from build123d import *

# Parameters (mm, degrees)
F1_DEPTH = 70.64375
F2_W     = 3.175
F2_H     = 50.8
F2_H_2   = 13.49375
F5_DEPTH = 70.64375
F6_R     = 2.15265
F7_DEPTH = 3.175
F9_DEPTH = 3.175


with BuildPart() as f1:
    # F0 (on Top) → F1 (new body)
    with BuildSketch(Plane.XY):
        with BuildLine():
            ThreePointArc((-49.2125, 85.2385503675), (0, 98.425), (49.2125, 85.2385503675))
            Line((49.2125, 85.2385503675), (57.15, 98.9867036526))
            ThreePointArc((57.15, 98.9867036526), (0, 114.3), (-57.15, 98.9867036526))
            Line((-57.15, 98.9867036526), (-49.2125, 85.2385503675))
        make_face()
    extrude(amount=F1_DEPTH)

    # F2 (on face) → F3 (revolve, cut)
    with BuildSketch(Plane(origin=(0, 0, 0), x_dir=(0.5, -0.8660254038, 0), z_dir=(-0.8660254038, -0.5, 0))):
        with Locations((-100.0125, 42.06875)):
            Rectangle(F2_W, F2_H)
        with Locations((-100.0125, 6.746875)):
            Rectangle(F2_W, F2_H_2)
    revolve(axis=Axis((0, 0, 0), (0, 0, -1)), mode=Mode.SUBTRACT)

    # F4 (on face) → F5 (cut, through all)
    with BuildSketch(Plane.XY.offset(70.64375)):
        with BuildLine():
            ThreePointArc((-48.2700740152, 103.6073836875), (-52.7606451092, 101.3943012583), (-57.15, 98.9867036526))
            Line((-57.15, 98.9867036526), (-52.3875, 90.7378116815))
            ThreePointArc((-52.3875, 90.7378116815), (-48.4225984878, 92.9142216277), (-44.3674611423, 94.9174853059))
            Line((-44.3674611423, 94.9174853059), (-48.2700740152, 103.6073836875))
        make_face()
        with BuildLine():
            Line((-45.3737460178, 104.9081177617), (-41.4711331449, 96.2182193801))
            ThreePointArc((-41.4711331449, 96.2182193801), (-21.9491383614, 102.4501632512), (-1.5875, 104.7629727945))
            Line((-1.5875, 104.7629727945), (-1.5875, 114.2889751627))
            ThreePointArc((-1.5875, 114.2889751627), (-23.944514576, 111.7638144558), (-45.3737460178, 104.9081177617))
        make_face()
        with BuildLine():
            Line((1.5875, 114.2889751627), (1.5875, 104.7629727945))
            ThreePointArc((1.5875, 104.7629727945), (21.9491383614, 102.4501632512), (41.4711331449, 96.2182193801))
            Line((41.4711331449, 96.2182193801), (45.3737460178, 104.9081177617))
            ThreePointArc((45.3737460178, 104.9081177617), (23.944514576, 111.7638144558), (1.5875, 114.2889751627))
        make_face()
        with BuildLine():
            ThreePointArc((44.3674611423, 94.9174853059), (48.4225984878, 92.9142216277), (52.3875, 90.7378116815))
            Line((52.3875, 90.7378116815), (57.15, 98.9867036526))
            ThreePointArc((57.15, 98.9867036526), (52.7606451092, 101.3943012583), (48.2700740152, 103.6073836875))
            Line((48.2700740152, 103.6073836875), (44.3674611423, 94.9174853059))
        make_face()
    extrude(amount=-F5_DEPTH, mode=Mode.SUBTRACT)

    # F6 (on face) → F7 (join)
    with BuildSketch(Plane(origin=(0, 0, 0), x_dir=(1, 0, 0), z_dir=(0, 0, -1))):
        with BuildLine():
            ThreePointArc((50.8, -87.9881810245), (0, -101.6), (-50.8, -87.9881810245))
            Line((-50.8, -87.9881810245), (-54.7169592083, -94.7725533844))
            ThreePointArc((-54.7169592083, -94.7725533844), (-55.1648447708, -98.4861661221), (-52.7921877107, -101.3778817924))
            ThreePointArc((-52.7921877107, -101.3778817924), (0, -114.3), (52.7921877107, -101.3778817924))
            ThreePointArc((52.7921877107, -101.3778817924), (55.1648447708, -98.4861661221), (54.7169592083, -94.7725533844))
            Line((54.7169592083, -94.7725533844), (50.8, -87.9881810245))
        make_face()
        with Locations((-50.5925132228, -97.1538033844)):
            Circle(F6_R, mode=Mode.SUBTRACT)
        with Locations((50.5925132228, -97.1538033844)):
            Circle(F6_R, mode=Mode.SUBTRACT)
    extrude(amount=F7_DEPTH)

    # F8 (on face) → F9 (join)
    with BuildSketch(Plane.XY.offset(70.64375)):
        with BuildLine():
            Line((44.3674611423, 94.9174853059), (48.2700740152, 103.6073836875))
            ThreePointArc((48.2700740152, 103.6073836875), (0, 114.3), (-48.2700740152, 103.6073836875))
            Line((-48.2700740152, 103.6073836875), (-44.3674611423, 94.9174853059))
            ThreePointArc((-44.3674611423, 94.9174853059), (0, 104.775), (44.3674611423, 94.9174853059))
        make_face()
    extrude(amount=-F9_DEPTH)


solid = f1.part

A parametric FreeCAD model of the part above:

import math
import FreeCAD as App
import Part
import Sketcher

V = App.Vector
Q = App.Units.Quantity

doc = App.newDocument("Part")
body = doc.addObject("PartDesign::Body", "Body")

# Sketch on XY plane
sketch1 = body.newObject("Sketcher::SketchObject", "Sketch")
sketch1.AttachmentSupport = (doc.getObject("XY_Plane"), [""])
sketch1.MapMode = "FlatFace"
sketch1.addGeometry([
    Part.ArcOfCircle(Part.Circle(V(0, 0, 0), V(0, 0, 1), 98), math.radians(60), math.radians(120)),
    Part.LineSegment(V(49, 85, 0), V(57, 99, 0)),
    Part.ArcOfCircle(Part.Circle(V(0, 0, 0), V(0, 0, 1), 114), math.radians(60), math.radians(120)),
    Part.LineSegment(V(-57, 99, 0), V(-49, 85, 0)),
], False)
sketch1.addConstraint([
    Sketcher.Constraint("Coincident", 0, 1, 1, 1),
    Sketcher.Constraint("Coincident", 1, 2, 2, 1),
    Sketcher.Constraint("Coincident", 2, 2, 3, 1),
    Sketcher.Constraint("Coincident", 3, 2, 0, 2),
    Sketcher.Constraint("Coincident", 0, 3, -1, 1),
    Sketcher.Constraint("Coincident", 2, 3, -1, 1),
    Sketcher.Constraint("Horizontal", 1, 2, 2, 2),
    Sketcher.Constraint("Horizontal", 0, 1, 3, 2),
    Sketcher.Constraint("Radius", 2, Q("4.5 in")),
    Sketcher.Constraint("Angle", 1, Q("60 deg")),
    Sketcher.Constraint("Radius", 0, Q("3.875 in")),
    Sketcher.Constraint("DistanceX", 2, 2, 1, 2, Q("4.5 in")),
])
pad1 = body.newObject("PartDesign::Pad", "Pad")
pad1.Profile = sketch1
pad1.Length = Q("2.78125 in")

# Sketch on an angled plane
sketch2 = body.newObject("Sketcher::SketchObject", "Sketch001")
sketch2.Placement = App.Placement(V(0, 0, 0), App.Rotation(V(0.5, -0.866025404, 0), V(0, 0, 1), V(-0.866025404, -0.5, 0), "ZXY"))
sketch2.addGeometry([
    Part.LineSegment(V(-101.6, 67.5, 0), V(-101.6, 16.7, 0)),  # 0
    Part.LineSegment(V(-101.6, 16.7, 0), V(-98.4, 16.7, 0)),  # 1
    Part.LineSegment(V(-98.4, 16.7, 0), V(-98.4, 67.5, 0)),  # 2
    Part.LineSegment(V(-98.4, 67.5, 0), V(-101.6, 67.5, 0)),  # 3
    Part.LineSegment(V(-101.6, 13.5, 0), V(-101.6, 0, 0)),  # 4
    Part.LineSegment(V(-101.6, 0, 0), V(-98.4, 0, 0)),  # 5
    Part.LineSegment(V(-98.4, 0, 0), V(-98.4, 13.5, 0)),  # 6
    Part.LineSegment(V(-98.4, 13.5, 0), V(-101.6, 13.5, 0)),  # 7
], False)
sketch2.addConstraint([
    Sketcher.Constraint("Coincident", 0, 2, 1, 1),
    Sketcher.Constraint("Coincident", 1, 2, 2, 1),
    Sketcher.Constraint("Coincident", 2, 2, 3, 1),
    Sketcher.Constraint("Coincident", 3, 2, 0, 1),
    Sketcher.Constraint("Coincident", 4, 2, 5, 1),
    Sketcher.Constraint("Coincident", 5, 2, 6, 1),
    Sketcher.Constraint("Coincident", 6, 2, 7, 1),
    Sketcher.Constraint("Coincident", 7, 2, 4, 1),
    Sketcher.Constraint("Vertical", 0),
    Sketcher.Constraint("Horizontal", 1),
    Sketcher.Constraint("Vertical", 2),
    Sketcher.Constraint("Horizontal", 3),
    Sketcher.Constraint("Vertical", 4),
    Sketcher.Constraint("Horizontal", 5),
    Sketcher.Constraint("Vertical", 6),
    Sketcher.Constraint("Horizontal", 7),
    Sketcher.Constraint("PointOnObject", 4, 2, -1),
    Sketcher.Constraint("Vertical", 3, 2, 4, 2),
    Sketcher.Constraint("Vertical", 2, 2, 5, 2),
    Sketcher.Constraint("DistanceY", 0, 2, 0, 1, Q("2 in")),
    Sketcher.Constraint("DistanceX", 0, 2, -1, 1, Q("4 in")),
    Sketcher.Constraint("DistanceX", 1, 1, 1, 2, Q("0.125 in")),
    Sketcher.Constraint("DistanceY", 4, 2, 4, 1, Q("0.53125 in")),
    Sketcher.Constraint("DistanceY", -1, 1, 0, 2, Q("0.65625 in")),
])
groove = body.newObject("PartDesign::Groove", "Groove")
groove.Profile = sketch2
groove.ReferenceAxis = (sketch2, ["V_Axis"])
groove.Angle = 360

# Sketch on XY plane
sketch3 = body.newObject("Sketcher::SketchObject", "Sketch002")
sketch3.AttachmentSupport = (doc.getObject("XY_Plane"), [""])
sketch3.MapMode = "FlatFace"
sketch3.AttachmentOffset = App.Placement(V(0, 0, 2.78125 * 25.4), App.Rotation())
sketch3.addGeometry([
    Part.ArcOfCircle(Part.Circle(V(0, 0, 0), V(0, 0, 1), 114.3), math.radians(114.980536), math.radians(120)),  # 0
    Part.LineSegment(V(-57.15, 98.986704, 0), V(-52.3875, 90.737812, 0)),  # 1
    Part.ArcOfCircle(Part.Circle(V(0, 0, 0), V(0, 0, 1), 104.775), math.radians(115.052887), math.radians(120)),  # 2
    Part.LineSegment(V(-44.367461, 94.917485, 0), V(-48.270074, 103.607384, 0)),  # 3
    Part.LineSegment(V(-45.373746, 104.908118, 0), V(-41.471133, 96.218219, 0)),  # 4
    Part.ArcOfCircle(Part.Circle(V(0, 0, 0), V(0, 0, 1), 104.775), math.radians(90.868151), math.radians(113.316585)),  # 5
    Part.LineSegment(V(-1.5875, 104.762973, 0), V(-1.5875, 114.288975, 0)),  # 6
    Part.ArcOfCircle(Part.Circle(V(0, 0, 0), V(0, 0, 1), 114.3), math.radians(90.7958), math.radians(113.388936)),  # 7
    Part.LineSegment(V(1.5875, 114.288975, 0), V(1.5875, 104.762973, 0)),  # 8
    Part.ArcOfCircle(Part.Circle(V(0, 0, 0), V(0, 0, 1), 104.775), math.radians(66.683415), math.radians(89.131849)),  # 9
    Part.LineSegment(V(41.471133, 96.218219, 0), V(45.373746, 104.908118, 0)),  # 10
    Part.ArcOfCircle(Part.Circle(V(0, 0, 0), V(0, 0, 1), 114.3), math.radians(66.611064), math.radians(89.2042)),  # 11
    Part.ArcOfCircle(Part.Circle(V(0, 0, 0), V(0, 0, 1), 104.775), math.radians(60), math.radians(64.947113)),  # 12
    Part.LineSegment(V(52.3875, 90.737812, 0), V(57.15, 98.986704, 0)),  # 13
    Part.ArcOfCircle(Part.Circle(V(0, 0, 0), V(0, 0, 1), 114.3), math.radians(60), math.radians(65.019464)),  # 14
    Part.LineSegment(V(48.270074, 103.607384, 0), V(44.367461, 94.917485, 0)),  # 15
], False)
sketch3.addConstraint([
    Sketcher.Constraint("Coincident", 0, 2, 1, 1),
    Sketcher.Constraint("Coincident", 1, 2, 2, 2),
    Sketcher.Constraint("Coincident", 2, 1, 3, 1),
    Sketcher.Constraint("Coincident", 3, 2, 0, 1),
    Sketcher.Constraint("Coincident", 4, 2, 5, 2),
    Sketcher.Constraint("Coincident", 5, 1, 6, 1),
    Sketcher.Constraint("Coincident", 6, 2, 7, 1),
    Sketcher.Constraint("Coincident", 7, 2, 4, 1),
    Sketcher.Constraint("Coincident", 8, 2, 9, 2),
    Sketcher.Constraint("Coincident", 9, 1, 10, 1),
    Sketcher.Constraint("Coincident", 10, 2, 11, 1),
    Sketcher.Constraint("Coincident", 11, 2, 8, 1),
    Sketcher.Constraint("Coincident", 12, 1, 13, 1),
    Sketcher.Constraint("Coincident", 13, 2, 14, 1),
    Sketcher.Constraint("Coincident", 14, 2, 15, 1),
    Sketcher.Constraint("Coincident", 15, 2, 12, 2),
    Sketcher.Constraint("Vertical", 6),
    Sketcher.Constraint("Vertical", 8),
    Sketcher.Constraint("Coincident", 0, 3, -1, 1),
    Sketcher.Constraint("Coincident", 2, 3, -1, 1),
    Sketcher.Constraint("Coincident", 5, 3, -1, 1),
    Sketcher.Constraint("Coincident", 7, 3, -1, 1),
    Sketcher.Constraint("Coincident", 9, 3, -1, 1),
    Sketcher.Constraint("Coincident", 11, 3, -1, 1),
    Sketcher.Constraint("Coincident", 12, 3, -1, 1),
    Sketcher.Constraint("Coincident", 14, 3, -1, 1),
    Sketcher.Constraint("Radius", 0, Q("4.5 in")),
    Sketcher.Constraint("Radius", 7, Q("4.5 in")),
    Sketcher.Constraint("Radius", 11, Q("4.5 in")),
    Sketcher.Constraint("Radius", 14, Q("4.5 in")),
    Sketcher.Constraint("Radius", 2, Q("4.125 in")),
    Sketcher.Constraint("Radius", 5, Q("4.125 in")),
    Sketcher.Constraint("Radius", 9, Q("4.125 in")),
    Sketcher.Constraint("Radius", 12, Q("4.125 in")),
    Sketcher.Constraint("DistanceX", 1, 2, 5, 1, Q("2 in")),
    Sketcher.Constraint("DistanceX", 8, 2, 12, 1, Q("2 in")),
    Sketcher.Constraint("DistanceX", 0, 2, -1, 1, Q("2.25 in")),
    Sketcher.Constraint("DistanceX", -1, 1, 13, 2, Q("2.25 in")),
    Sketcher.Constraint("DistanceX", 1, 2, -1, 1, Q("2.0625 in")),
    Sketcher.Constraint("DistanceX", -1, 1, 8, 2, Q("0.0625 in")),
    Sketcher.Constraint("DistanceY", 2, 1, 3, 2, 8.689898),
    Sketcher.Constraint("DistanceY", 4, 2, 7, 2, 8.689898),
    Sketcher.Constraint("DistanceY", 9, 1, 10, 2, 8.689898),
    Sketcher.Constraint("DistanceY", 4, 2, 10, 2, 8.689898),
    Sketcher.Constraint("DistanceY", 15, 2, 14, 2, 8.689898),
    Sketcher.Constraint("DistanceX", 2, 1, -1, 1, 44.367461),
    Sketcher.Constraint("DistanceY", -1, 1, 4, 2, 96.218219),
    Sketcher.Constraint("DistanceX", -1, 1, 15, 2, 44.367461),
])
pocket1 = body.newObject("PartDesign::Pocket", "Pocket")
pocket1.Profile = sketch3
pocket1.Type = "ThroughAll"

# Sketch on XY plane
sketch4 = body.newObject("Sketcher::SketchObject", "Sketch003")
sketch4.AttachmentSupport = (doc.getObject("XY_Plane"), [""])
sketch4.MapMode = "FlatFace"
sketch4.addGeometry([
    Part.ArcOfCircle(Part.Circle(V(0, 0, 0), V(0, 0, 1), 101.6), math.radians(60), math.radians(120)),  # 0
    Part.LineSegment(V(-50.8, 88, 0), V(-54.7, 94.8, 0)),  # 1
    Part.ArcOfCircle(Part.Circle(V(-50.6, 97.2, 0), V(0, 0, 1), 4.8), math.radians(118), math.radians(210)),  # 2
    Part.ArcOfCircle(Part.Circle(V(0, 0, 0), V(0, 0, 1), 114.3), math.radians(62), math.radians(118)),  # 3
    Part.ArcOfCircle(Part.Circle(V(50.6, 97.2, 0), V(0, 0, 1), 4.8), math.radians(-30), math.radians(62)),  # 4
    Part.LineSegment(V(54.7, 94.8, 0), V(50.8, 88, 0)),  # 5
    Part.Circle(V(-50.6, 97.2, 0), V(0, 0, 1), 2.2),  # 6
    Part.Circle(V(50.6, 97.2, 0), V(0, 0, 1), 2.2),  # 7
], False)
sketch4.addConstraint([
    Sketcher.Constraint("Coincident", 0, 2, 1, 1),
    Sketcher.Constraint("Tangent", 1, 2, 2, 2),
    Sketcher.Constraint("Tangent", 2, 1, 3, 2),
    Sketcher.Constraint("Tangent", 3, 1, 4, 2),
    Sketcher.Constraint("Tangent", 4, 1, 5, 1),
    Sketcher.Constraint("Coincident", 5, 2, 0, 1),
    Sketcher.Constraint("Coincident", 0, 3, -1, 1),
    Sketcher.Constraint("Coincident", 3, 3, -1, 1),
    Sketcher.Constraint("Coincident", 6, 3, 2, 3),
    Sketcher.Constraint("Coincident", 7, 3, 4, 3),
    Sketcher.Constraint("Equal", 2, 4),
    Sketcher.Constraint("Equal", 6, 7),
    Sketcher.Constraint("Symmetric", 1, 2, 4, 1, -2),
    Sketcher.Constraint("Radius", 0, Q("4 in")),
    Sketcher.Constraint("Radius", 3, Q("4.5 in")),
    Sketcher.Constraint("DistanceX", 0, 2, -1, 1, Q("2 in")),
    Sketcher.Constraint("Angle", 1, Q("120 deg")),
    Sketcher.Constraint("Radius", 2, Q("0.1875 in")),
    Sketcher.Constraint("Diameter", 6, Q("0.1695 in")),
])
pad2 = body.newObject("PartDesign::Pad", "Pad001")
pad2.Profile = sketch4
pad2.Length = Q("0.125 in")
pad2.Reversed = True

# Sketch on XY plane
sketch5 = body.newObject("Sketcher::SketchObject", "Sketch004")
sketch5.AttachmentSupport = (doc.getObject("XY_Plane"), [""])
sketch5.MapMode = "FlatFace"
sketch5.AttachmentOffset = App.Placement(V(0, 0, 2.78125 * 25.4), App.Rotation())
sketch5.addGeometry([
    Part.LineSegment(V(44, 95, 0), V(48, 104, 0)),
    Part.ArcOfCircle(Part.Circle(V(0, 0, 0), V(0, 0, 1), 114), math.radians(65), math.radians(115)),
    Part.LineSegment(V(-48, 104, 0), V(-44, 95, 0)),
    Part.ArcOfCircle(Part.Circle(V(0, 0, 0), V(0, 0, 1), 105), math.radians(65), math.radians(115)),
], False)
sketch5.addConstraint([
    Sketcher.Constraint("Coincident", 0, 2, 1, 1),
    Sketcher.Constraint("Coincident", 1, 2, 2, 1),
    Sketcher.Constraint("Coincident", 2, 2, 3, 2),
    Sketcher.Constraint("Coincident", 3, 1, 0, 1),
    Sketcher.Constraint("Coincident", 1, 3, -1, 1),
    Sketcher.Constraint("Coincident", 3, 3, -1, 1),
    Sketcher.Constraint("Horizontal", 0, 2, 1, 2),
    Sketcher.Constraint("Horizontal", 2, 2, 3, 1),
    Sketcher.Constraint("Radius", 1, Q("4.5 in")),
    Sketcher.Constraint("Radius", 3, Q("4.125 in")),
    Sketcher.Constraint("DistanceY", 2, 2, 1, 2, 8.689898),
    Sketcher.Constraint("DistanceX", 2, 2, -1, 1, 44.367461),
])
pad3 = body.newObject("PartDesign::Pad", "Pad002")
pad3.Profile = sketch5
pad3.Length = Q("0.125 in")
pad3.Reversed = True

doc.recompute()
